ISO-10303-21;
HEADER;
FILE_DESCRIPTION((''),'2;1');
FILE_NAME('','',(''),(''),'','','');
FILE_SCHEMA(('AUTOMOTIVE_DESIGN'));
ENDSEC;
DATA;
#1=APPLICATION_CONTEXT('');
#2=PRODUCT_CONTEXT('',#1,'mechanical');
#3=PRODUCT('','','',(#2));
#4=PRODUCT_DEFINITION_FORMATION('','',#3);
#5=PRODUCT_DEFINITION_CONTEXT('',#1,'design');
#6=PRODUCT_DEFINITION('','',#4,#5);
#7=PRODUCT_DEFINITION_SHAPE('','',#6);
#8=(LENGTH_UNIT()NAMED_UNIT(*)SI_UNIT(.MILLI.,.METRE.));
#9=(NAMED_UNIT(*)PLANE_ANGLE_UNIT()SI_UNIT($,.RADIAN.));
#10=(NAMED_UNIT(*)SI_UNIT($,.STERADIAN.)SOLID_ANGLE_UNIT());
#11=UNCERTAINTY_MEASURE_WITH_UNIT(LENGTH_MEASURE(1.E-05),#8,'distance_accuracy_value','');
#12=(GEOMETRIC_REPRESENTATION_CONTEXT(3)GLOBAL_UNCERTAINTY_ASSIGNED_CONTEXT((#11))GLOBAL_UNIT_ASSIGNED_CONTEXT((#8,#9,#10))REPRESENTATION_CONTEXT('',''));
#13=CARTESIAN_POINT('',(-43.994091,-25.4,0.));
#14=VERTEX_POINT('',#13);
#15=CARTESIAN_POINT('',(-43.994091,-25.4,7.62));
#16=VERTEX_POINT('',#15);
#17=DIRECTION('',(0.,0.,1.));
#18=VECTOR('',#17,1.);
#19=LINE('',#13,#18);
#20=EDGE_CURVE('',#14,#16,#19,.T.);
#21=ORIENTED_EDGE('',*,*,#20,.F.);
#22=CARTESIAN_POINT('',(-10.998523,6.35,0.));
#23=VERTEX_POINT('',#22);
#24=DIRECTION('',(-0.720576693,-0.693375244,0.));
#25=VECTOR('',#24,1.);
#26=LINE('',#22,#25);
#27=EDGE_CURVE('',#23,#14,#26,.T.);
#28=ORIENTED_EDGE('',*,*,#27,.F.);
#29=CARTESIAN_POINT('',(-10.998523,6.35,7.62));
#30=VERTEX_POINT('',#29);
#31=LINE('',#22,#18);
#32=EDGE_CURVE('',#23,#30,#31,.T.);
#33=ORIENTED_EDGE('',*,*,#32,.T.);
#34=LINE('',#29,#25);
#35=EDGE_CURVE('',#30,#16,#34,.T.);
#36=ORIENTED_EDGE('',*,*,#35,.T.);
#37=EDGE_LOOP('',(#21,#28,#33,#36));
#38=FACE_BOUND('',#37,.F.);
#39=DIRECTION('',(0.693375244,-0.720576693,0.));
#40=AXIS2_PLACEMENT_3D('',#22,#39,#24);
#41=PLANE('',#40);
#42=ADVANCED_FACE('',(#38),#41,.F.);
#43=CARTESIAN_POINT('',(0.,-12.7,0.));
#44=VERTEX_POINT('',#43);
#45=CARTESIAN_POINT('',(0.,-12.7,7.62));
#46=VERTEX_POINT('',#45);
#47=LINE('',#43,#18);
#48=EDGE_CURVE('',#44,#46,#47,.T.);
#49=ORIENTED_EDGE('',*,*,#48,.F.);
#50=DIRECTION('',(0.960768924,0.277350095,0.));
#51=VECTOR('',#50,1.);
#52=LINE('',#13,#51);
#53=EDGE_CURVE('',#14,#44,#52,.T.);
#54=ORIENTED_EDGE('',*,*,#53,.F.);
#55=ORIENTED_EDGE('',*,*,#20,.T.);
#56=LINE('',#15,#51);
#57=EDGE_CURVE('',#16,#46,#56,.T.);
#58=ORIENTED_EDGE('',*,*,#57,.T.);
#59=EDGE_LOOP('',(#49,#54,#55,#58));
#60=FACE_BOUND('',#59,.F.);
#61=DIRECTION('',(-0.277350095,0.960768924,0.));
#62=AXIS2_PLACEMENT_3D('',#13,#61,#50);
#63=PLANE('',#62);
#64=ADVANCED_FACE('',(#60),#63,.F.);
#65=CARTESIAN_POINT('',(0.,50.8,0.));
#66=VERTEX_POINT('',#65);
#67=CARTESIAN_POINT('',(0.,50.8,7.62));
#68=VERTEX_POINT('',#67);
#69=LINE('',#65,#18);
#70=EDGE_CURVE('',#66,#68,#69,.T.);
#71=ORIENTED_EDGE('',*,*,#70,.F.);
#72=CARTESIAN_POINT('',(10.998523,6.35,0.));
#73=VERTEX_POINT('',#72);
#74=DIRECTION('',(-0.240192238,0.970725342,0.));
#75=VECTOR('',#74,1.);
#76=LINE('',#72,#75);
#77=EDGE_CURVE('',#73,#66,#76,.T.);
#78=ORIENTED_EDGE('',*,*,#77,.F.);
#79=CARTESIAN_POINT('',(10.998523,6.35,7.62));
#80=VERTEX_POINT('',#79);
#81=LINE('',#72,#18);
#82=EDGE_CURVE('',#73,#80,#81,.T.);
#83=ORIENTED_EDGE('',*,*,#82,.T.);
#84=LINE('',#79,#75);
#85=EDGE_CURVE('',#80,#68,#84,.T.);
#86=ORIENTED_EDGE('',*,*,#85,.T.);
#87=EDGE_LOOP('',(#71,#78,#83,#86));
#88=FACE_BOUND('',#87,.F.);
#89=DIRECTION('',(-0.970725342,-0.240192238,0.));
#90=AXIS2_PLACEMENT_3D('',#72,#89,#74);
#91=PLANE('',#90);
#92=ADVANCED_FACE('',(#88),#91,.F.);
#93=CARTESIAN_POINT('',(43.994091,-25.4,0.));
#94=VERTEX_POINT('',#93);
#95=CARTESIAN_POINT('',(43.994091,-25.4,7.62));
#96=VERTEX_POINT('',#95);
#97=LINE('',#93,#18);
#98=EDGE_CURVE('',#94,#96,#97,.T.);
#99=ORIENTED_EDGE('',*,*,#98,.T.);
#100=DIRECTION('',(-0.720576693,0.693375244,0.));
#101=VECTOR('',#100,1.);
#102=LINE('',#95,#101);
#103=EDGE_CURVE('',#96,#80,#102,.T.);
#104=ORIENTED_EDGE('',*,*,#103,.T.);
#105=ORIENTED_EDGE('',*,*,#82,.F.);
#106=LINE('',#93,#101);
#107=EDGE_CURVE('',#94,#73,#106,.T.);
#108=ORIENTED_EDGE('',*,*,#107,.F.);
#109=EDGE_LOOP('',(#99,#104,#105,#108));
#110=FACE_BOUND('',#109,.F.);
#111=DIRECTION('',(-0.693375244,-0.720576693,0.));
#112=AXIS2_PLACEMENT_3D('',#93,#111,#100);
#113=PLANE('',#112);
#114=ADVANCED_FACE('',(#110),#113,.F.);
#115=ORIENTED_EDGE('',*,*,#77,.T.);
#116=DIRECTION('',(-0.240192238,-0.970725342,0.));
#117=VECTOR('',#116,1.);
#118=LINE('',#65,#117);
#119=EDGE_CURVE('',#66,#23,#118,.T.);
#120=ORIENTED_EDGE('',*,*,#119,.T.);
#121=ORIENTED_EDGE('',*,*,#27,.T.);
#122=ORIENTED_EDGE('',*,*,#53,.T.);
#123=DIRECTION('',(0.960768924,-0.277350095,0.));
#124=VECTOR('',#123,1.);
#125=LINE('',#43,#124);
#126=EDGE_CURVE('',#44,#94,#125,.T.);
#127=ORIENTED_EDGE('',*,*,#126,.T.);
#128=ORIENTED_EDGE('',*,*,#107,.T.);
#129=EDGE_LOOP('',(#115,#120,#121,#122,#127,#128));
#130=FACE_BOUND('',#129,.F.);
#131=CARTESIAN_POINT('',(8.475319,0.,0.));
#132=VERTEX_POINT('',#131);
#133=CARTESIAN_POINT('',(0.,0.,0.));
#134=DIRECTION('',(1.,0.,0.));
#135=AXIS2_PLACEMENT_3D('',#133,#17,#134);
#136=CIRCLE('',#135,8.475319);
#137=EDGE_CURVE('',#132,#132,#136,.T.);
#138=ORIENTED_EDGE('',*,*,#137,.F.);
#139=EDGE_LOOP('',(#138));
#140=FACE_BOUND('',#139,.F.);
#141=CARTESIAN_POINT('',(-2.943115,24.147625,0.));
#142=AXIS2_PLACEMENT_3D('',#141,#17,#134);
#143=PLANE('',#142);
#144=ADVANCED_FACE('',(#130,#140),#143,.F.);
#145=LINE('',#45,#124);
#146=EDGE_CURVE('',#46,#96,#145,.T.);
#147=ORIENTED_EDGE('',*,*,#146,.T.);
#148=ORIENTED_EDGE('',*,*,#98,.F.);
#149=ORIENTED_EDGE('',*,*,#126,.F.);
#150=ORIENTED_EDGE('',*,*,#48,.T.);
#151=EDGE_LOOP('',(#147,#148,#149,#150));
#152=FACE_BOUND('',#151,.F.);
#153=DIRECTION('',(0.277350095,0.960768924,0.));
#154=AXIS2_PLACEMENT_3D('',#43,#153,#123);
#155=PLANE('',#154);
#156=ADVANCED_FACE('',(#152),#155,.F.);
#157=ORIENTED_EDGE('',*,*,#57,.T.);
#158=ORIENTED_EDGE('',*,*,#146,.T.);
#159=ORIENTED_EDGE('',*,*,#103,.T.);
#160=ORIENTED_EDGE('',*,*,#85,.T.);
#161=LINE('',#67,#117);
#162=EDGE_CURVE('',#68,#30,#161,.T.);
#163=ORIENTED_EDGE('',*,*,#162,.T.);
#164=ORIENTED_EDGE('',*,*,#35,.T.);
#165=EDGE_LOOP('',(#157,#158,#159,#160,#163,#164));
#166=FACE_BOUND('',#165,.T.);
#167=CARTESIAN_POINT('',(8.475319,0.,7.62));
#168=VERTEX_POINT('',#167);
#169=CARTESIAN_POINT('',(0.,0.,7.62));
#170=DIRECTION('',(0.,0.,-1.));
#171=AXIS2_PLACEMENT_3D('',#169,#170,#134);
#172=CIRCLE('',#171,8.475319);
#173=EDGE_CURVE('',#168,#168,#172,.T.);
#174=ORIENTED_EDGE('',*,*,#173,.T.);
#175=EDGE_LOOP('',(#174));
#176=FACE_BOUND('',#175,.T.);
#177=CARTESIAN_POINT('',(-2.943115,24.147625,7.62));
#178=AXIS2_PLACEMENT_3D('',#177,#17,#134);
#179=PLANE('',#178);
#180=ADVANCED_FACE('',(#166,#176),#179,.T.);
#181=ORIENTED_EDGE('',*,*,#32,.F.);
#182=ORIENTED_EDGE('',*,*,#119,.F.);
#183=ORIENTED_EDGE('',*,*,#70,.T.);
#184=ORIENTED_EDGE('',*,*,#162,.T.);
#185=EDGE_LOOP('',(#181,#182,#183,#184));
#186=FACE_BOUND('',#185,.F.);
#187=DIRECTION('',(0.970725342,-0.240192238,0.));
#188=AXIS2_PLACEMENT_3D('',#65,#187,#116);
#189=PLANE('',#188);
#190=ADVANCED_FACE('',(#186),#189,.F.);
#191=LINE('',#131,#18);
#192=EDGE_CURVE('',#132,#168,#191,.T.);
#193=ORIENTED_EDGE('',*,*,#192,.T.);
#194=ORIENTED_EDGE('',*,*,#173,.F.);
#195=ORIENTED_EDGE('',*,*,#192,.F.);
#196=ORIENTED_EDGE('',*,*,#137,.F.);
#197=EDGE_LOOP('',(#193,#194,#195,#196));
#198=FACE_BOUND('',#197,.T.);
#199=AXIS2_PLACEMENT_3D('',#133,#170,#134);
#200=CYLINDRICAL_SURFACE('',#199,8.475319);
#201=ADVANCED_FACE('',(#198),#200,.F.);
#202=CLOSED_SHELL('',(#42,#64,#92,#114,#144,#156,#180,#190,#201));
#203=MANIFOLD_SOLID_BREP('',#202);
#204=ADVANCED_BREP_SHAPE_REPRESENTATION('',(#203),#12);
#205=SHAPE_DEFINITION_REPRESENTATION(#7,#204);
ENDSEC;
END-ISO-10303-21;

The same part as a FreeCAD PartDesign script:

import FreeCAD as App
import Part
import Sketcher
from FreeCAD import Vector
Q = App.Units.Quantity

doc = App.newDocument("Part")
body = doc.addObject("PartDesign::Body", "Body")

sketch1 = doc.addObject("Sketcher::SketchObject", "Sketch")
body.addObject(sketch1)
sketch1.AttachmentSupport = (doc.XY_Plane, [""])
sketch1.MapMode = "FlatFace"
sketch1.addGeometry([
    Part.LineSegment(Vector(0, 51, 0), Vector(-11, 6, 0)),
    Part.LineSegment(Vector(-11, 6, 0), Vector(-44, -25, 0)),
    Part.LineSegment(Vector(-44, -25, 0), Vector(0, -13, 0)),
    Part.LineSegment(Vector(0, -13, 0), Vector(44, -25, 0)),
    Part.LineSegment(Vector(44, -25, 0), Vector(11, 6, 0)),
    Part.LineSegment(Vector(11, 6, 0), Vector(0, 51, 0)),
], False)
sketch1.addConstraint([
    Sketcher.Constraint("Coincident", 0, 2, 1, 1),
    Sketcher.Constraint("Coincident", 1, 2, 2, 1),
    Sketcher.Constraint("Coincident", 2, 2, 3, 1),
    Sketcher.Constraint("Coincident", 3, 2, 4, 1),
    Sketcher.Constraint("Coincident", 4, 2, 5, 1),
    Sketcher.Constraint("Coincident", 5, 2, 0, 1),
    Sketcher.Constraint("Symmetric", 1, 2, 3, 2, -2),
    Sketcher.Constraint("Symmetric", 0, 2, 4, 2, -2),
    Sketcher.Constraint("PointOnObject", 2, 2, -2),
    Sketcher.Constraint("PointOnObject", 5, 2, -2),
    Sketcher.Constraint("Equal", 0, 1),
    Sketcher.Constraint("Equal", 1, 2),
    Sketcher.Constraint("DistanceY", 1, 2, -1, 1, Q("1 in")),
    Sketcher.Constraint("DistanceY", -1, 1, 5, 2, Q("2 in")),
    Sketcher.Constraint("DistanceY", 2, 2, -1, 1, Q("0.5 in")),
    Sketcher.Constraint("DistanceY", -1, 1, 0, 2, Q("0.25 in")),
])
pad1 = doc.addObject("PartDesign::Pad", "Pad")
body.addObject(pad1)
pad1.Profile = sketch1
pad1.Length = Q("0.3 in")

sketch2 = doc.addObject("Sketcher::SketchObject", "Sketch001")
body.addObject(sketch2)
sketch2.AttachmentSupport = (doc.XY_Plane, [""])
sketch2.MapMode = "FlatFace"
sketch2.addGeometry(Part.Circle(Vector(0, 0, 0), Vector(0, 0, 1), 8), False)
sketch2.addConstraint([
    Sketcher.Constraint("Coincident", 0, 3, -1, 1),
    Sketcher.Constraint("Diameter", 0, Q("16.950638 mm")),
])
pocket1 = doc.addObject("PartDesign::Pocket", "Pocket")
body.addObject(pocket1)
pocket1.Profile = sketch2
pocket1.Length = Q("2.91 in")
pocket1.Reversed = True

doc.recompute()
